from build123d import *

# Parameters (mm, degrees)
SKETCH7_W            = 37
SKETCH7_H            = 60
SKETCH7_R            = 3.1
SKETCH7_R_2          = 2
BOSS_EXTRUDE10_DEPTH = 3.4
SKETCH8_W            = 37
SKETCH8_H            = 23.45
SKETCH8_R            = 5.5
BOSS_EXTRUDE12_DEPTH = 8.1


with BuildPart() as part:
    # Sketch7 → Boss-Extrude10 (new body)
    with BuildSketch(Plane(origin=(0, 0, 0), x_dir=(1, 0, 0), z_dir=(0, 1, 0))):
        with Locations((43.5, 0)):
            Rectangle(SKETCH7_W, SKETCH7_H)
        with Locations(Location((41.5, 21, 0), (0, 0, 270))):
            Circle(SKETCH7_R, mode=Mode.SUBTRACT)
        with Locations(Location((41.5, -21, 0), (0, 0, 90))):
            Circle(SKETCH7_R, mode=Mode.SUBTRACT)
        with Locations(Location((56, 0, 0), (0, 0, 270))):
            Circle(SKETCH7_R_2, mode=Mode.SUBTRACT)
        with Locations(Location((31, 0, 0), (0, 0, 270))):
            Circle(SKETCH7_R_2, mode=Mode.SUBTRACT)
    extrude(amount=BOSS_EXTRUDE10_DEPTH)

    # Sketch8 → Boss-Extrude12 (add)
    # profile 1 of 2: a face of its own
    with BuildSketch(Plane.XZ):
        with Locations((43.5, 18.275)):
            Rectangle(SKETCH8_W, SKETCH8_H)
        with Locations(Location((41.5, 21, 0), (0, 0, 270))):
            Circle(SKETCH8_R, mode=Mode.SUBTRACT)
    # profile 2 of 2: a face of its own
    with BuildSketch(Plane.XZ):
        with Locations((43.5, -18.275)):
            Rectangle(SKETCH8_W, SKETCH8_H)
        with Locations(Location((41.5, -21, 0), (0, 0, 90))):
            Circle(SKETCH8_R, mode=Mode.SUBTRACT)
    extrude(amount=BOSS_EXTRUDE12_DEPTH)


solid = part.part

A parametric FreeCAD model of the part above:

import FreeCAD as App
import Part
import Sketcher
from FreeCAD import Vector


def add_polygon(sketch, points):
    """Adds a closed chain of lines whose ends are joined by coincident constraints."""
    first, n = sketch.GeometryCount, len(points)
    for a, b in zip(points, points[1:] + points[:1]):
        sketch.addGeometry(Part.LineSegment(App.Vector(*a, 0), App.Vector(*b, 0)), False)
    for i in range(n):
        sketch.addConstraint(Sketcher.Constraint("Coincident", first + i, 2, first + (i + 1) % n, 1))

doc = App.newDocument("Part")
body = doc.addObject("PartDesign::Body", "Body")

sketch1 = doc.addObject("Sketcher::SketchObject", "Sketch")
body.addObject(sketch1)
sketch1.AttachmentSupport = (doc.XZ_Plane, [""])
sketch1.MapMode = "FlatFace"
add_polygon(sketch1, [(25, -30), (25, 30), (62, 30), (62, -30)])
sketch1.addGeometry(Part.Circle(Vector(41.5, 21, 0), Vector(0, 0, 1), 3.1), False)
sketch1.addGeometry(Part.Circle(Vector(31, 0, 0), Vector(0, 0, 1), 2), False)
sketch1.addGeometry(Part.Circle(Vector(41.5, -21, 0), Vector(0, 0, 1), 3.1), False)
sketch1.addGeometry(Part.Circle(Vector(56, 0, 0), Vector(0, 0, 1), 2), False)
sketch1.addConstraint([
    Sketcher.Constraint("Vertical", 0),
    Sketcher.Constraint("Horizontal", 1),
    Sketcher.Constraint("Vertical", 2),
    Sketcher.Constraint("Horizontal", 3),
    Sketcher.Constraint("Equal", 4, 6),
    Sketcher.Constraint("Equal", 5, 7),
    Sketcher.Constraint("Symmetric", 4, 3, 6, 3, -1),
    Sketcher.Constraint("PointOnObject", 5, 3, -1),
    Sketcher.Constraint("PointOnObject", 7, 3, -1),
    Sketcher.Constraint("Diameter", 5, 4.0),
    Sketcher.Constraint("Diameter", 4, 6.2),
    Sketcher.Constraint("DistanceX", 1, 1, 1, 2, 37.0),
    Sketcher.Constraint("DistanceY", 0, 1, 0, 2, 60.0),
    Sketcher.Constraint("DistanceY", -1, 1, 4, 3, 21.0),
    Sketcher.Constraint("DistanceX", -1, 1, 5, 3, 31.0),
    Sketcher.Constraint("DistanceX", -1, 1, 7, 3, 56.0),
    Sketcher.Constraint("DistanceX", -1, 1, 0, 2, 25.0),
    Sketcher.Constraint("DistanceY", -1, 1, 0, 2, 30.0),
    Sketcher.Constraint("DistanceX", -1, 1, 4, 3, 41.5),
])
pad1 = doc.addObject("PartDesign::Pad", "Pad")
body.addObject(pad1)
pad1.Profile = sketch1
pad1.Length = 3.4
pad1.Reversed = True

sketch2 = doc.addObject("Sketcher::SketchObject", "Sketch001")
body.addObject(sketch2)
sketch2.AttachmentSupport = (doc.XZ_Plane, [""])
sketch2.MapMode = "FlatFace"
add_polygon(sketch2, [(25, 30), (25, 6.55), (62, 6.55), (62, 30)])
sketch2.addGeometry(Part.Circle(Vector(41.5, 21, 0), Vector(0, 0, 1), 5.5), False)
add_polygon(sketch2, [(25, -6.55), (25, -30), (62, -30), (62, -6.55)])
sketch2.addGeometry(Part.Circle(Vector(41.5, -21, 0), Vector(0, 0, 1), 5.5), False)
sketch2.addConstraint([
    Sketcher.Constraint("Vertical", 0),
    Sketcher.Constraint("Horizontal", 1),
    Sketcher.Constraint("Vertical", 2),
    Sketcher.Constraint("Horizontal", 3),
    Sketcher.Constraint("Vertical", 5),
    Sketcher.Constraint("Horizontal", 6),
    Sketcher.Constraint("Vertical", 7),
    Sketcher.Constraint("Horizontal", 8),
    Sketcher.Constraint("Equal", 4, 9),
    Sketcher.Constraint("Symmetric", 4, 3, 9, 3, -1),
    Sketcher.Constraint("Symmetric", 3, 2, 5, 2, -1),
    Sketcher.Constraint("Symmetric", 1, 2, 7, 2, -1),
    Sketcher.Constraint("Diameter", 4, 11.0),
    Sketcher.Constraint("DistanceX", 1, 1, 1, 2, 37.0),
    Sketcher.Constraint("DistanceY", -1, 1, 4, 3, 21.0),
    Sketcher.Constraint("DistanceX", -1, 1, 0, 2, 25.0),
    Sketcher.Constraint("DistanceY", -1, 1, 2, 2, 30.0),
    Sketcher.Constraint("DistanceY", 0, 2, 0, 1, 23.45),
    Sketcher.Constraint("DistanceX", -1, 1, 4, 3, 41.5),
])
pad2 = doc.addObject("PartDesign::Pad", "Pad001")
body.addObject(pad2)
pad2.Profile = sketch2
pad2.Length = 8.1

doc.recompute()
